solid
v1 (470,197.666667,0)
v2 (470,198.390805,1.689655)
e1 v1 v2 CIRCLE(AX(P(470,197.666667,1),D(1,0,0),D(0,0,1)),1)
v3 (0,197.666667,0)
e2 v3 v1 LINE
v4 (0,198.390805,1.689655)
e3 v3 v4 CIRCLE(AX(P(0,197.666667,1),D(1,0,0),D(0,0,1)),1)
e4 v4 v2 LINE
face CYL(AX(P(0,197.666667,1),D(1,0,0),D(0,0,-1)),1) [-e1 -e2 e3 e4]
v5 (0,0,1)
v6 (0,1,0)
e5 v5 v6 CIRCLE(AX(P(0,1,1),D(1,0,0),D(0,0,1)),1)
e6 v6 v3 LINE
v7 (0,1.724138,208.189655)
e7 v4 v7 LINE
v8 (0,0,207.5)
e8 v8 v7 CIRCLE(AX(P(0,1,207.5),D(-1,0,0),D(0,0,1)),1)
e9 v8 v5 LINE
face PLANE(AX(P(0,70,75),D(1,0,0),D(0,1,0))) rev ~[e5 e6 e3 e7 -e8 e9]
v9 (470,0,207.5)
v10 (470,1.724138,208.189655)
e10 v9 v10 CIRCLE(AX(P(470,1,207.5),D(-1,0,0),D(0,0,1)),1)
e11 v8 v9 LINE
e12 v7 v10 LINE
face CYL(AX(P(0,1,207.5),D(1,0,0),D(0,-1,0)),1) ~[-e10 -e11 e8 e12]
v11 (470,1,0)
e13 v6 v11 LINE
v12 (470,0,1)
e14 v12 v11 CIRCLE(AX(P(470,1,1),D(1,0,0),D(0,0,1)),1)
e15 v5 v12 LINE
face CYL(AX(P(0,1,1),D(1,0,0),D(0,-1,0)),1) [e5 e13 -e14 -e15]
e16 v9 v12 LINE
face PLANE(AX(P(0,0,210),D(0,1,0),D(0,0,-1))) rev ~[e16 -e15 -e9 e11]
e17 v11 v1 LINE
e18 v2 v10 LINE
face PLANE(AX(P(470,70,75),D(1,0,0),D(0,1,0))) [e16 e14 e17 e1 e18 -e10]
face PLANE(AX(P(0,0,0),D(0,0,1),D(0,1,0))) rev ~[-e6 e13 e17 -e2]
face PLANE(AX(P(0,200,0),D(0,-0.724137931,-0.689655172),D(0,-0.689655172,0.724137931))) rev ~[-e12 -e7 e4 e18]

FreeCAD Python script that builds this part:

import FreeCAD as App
import Part
import Sketcher
from FreeCAD import Vector
Q = App.Units.Quantity


def edges_at(feature, points):
    """Names of the edges that pass closest to the given points."""
    edges = feature.Shape.Edges
    near = lambda p: min(range(len(edges)), key=lambda i: edges[i].distToShape(Part.Vertex(*p))[0])
    return sorted({f"Edge{near(p) + 1}" for p in points})

doc = App.newDocument("Part")
body = doc.addObject("PartDesign::Body", "Body")

# Sketch on YZ plane
sketch1 = doc.addObject("Sketcher::SketchObject", "Sketch")
body.addObject(sketch1)
sketch1.AttachmentSupport = (doc.YZ_Plane, [""])
sketch1.MapMode = "FlatFace"
sketch1.addGeometry(Part.LineSegment(Vector(0, 210, 0), Vector(0, 0, 0)), False)
sketch1.addGeometry(Part.LineSegment(Vector(0, 0, 0), Vector(200, 0, 0)), False)
sketch1.addGeometry(Part.LineSegment(Vector(200, 0, 0), Vector(0, 210, 0)), False)
sketch1.addConstraint(Sketcher.Constraint("Coincident", 0, 2, 1, 1))
sketch1.addConstraint(Sketcher.Constraint("Coincident", 1, 2, 2, 1))
sketch1.addConstraint(Sketcher.Constraint("Coincident", 2, 2, 0, 1))
sketch1.addConstraint(Sketcher.Constraint("Vertical", 0))
sketch1.addConstraint(Sketcher.Constraint("Horizontal", 1))
sketch1.addConstraint(Sketcher.Constraint("Coincident", 0, 2, -1, 1))
sketch1.addConstraint(Sketcher.Constraint("DistanceX", 1, 1, 1, 2, Q("200 mm")))
sketch1.addConstraint(Sketcher.Constraint("DistanceY", 0, 2, 0, 1, Q("210 mm")))
pad1 = doc.addObject("PartDesign::Pad", "Pad")
body.addObject(pad1)
pad1.Profile = sketch1
pad1.Length = 470
doc.recompute()

fillet = doc.addObject("PartDesign::Fillet", "Fillet")
body.addObject(fillet)
fillet.Base = (pad1, edges_at(pad1, [(235, 0, 210), (235, 200, 0), (235, 0, 0)]))
fillet.Radius = 1

doc.recompute()
